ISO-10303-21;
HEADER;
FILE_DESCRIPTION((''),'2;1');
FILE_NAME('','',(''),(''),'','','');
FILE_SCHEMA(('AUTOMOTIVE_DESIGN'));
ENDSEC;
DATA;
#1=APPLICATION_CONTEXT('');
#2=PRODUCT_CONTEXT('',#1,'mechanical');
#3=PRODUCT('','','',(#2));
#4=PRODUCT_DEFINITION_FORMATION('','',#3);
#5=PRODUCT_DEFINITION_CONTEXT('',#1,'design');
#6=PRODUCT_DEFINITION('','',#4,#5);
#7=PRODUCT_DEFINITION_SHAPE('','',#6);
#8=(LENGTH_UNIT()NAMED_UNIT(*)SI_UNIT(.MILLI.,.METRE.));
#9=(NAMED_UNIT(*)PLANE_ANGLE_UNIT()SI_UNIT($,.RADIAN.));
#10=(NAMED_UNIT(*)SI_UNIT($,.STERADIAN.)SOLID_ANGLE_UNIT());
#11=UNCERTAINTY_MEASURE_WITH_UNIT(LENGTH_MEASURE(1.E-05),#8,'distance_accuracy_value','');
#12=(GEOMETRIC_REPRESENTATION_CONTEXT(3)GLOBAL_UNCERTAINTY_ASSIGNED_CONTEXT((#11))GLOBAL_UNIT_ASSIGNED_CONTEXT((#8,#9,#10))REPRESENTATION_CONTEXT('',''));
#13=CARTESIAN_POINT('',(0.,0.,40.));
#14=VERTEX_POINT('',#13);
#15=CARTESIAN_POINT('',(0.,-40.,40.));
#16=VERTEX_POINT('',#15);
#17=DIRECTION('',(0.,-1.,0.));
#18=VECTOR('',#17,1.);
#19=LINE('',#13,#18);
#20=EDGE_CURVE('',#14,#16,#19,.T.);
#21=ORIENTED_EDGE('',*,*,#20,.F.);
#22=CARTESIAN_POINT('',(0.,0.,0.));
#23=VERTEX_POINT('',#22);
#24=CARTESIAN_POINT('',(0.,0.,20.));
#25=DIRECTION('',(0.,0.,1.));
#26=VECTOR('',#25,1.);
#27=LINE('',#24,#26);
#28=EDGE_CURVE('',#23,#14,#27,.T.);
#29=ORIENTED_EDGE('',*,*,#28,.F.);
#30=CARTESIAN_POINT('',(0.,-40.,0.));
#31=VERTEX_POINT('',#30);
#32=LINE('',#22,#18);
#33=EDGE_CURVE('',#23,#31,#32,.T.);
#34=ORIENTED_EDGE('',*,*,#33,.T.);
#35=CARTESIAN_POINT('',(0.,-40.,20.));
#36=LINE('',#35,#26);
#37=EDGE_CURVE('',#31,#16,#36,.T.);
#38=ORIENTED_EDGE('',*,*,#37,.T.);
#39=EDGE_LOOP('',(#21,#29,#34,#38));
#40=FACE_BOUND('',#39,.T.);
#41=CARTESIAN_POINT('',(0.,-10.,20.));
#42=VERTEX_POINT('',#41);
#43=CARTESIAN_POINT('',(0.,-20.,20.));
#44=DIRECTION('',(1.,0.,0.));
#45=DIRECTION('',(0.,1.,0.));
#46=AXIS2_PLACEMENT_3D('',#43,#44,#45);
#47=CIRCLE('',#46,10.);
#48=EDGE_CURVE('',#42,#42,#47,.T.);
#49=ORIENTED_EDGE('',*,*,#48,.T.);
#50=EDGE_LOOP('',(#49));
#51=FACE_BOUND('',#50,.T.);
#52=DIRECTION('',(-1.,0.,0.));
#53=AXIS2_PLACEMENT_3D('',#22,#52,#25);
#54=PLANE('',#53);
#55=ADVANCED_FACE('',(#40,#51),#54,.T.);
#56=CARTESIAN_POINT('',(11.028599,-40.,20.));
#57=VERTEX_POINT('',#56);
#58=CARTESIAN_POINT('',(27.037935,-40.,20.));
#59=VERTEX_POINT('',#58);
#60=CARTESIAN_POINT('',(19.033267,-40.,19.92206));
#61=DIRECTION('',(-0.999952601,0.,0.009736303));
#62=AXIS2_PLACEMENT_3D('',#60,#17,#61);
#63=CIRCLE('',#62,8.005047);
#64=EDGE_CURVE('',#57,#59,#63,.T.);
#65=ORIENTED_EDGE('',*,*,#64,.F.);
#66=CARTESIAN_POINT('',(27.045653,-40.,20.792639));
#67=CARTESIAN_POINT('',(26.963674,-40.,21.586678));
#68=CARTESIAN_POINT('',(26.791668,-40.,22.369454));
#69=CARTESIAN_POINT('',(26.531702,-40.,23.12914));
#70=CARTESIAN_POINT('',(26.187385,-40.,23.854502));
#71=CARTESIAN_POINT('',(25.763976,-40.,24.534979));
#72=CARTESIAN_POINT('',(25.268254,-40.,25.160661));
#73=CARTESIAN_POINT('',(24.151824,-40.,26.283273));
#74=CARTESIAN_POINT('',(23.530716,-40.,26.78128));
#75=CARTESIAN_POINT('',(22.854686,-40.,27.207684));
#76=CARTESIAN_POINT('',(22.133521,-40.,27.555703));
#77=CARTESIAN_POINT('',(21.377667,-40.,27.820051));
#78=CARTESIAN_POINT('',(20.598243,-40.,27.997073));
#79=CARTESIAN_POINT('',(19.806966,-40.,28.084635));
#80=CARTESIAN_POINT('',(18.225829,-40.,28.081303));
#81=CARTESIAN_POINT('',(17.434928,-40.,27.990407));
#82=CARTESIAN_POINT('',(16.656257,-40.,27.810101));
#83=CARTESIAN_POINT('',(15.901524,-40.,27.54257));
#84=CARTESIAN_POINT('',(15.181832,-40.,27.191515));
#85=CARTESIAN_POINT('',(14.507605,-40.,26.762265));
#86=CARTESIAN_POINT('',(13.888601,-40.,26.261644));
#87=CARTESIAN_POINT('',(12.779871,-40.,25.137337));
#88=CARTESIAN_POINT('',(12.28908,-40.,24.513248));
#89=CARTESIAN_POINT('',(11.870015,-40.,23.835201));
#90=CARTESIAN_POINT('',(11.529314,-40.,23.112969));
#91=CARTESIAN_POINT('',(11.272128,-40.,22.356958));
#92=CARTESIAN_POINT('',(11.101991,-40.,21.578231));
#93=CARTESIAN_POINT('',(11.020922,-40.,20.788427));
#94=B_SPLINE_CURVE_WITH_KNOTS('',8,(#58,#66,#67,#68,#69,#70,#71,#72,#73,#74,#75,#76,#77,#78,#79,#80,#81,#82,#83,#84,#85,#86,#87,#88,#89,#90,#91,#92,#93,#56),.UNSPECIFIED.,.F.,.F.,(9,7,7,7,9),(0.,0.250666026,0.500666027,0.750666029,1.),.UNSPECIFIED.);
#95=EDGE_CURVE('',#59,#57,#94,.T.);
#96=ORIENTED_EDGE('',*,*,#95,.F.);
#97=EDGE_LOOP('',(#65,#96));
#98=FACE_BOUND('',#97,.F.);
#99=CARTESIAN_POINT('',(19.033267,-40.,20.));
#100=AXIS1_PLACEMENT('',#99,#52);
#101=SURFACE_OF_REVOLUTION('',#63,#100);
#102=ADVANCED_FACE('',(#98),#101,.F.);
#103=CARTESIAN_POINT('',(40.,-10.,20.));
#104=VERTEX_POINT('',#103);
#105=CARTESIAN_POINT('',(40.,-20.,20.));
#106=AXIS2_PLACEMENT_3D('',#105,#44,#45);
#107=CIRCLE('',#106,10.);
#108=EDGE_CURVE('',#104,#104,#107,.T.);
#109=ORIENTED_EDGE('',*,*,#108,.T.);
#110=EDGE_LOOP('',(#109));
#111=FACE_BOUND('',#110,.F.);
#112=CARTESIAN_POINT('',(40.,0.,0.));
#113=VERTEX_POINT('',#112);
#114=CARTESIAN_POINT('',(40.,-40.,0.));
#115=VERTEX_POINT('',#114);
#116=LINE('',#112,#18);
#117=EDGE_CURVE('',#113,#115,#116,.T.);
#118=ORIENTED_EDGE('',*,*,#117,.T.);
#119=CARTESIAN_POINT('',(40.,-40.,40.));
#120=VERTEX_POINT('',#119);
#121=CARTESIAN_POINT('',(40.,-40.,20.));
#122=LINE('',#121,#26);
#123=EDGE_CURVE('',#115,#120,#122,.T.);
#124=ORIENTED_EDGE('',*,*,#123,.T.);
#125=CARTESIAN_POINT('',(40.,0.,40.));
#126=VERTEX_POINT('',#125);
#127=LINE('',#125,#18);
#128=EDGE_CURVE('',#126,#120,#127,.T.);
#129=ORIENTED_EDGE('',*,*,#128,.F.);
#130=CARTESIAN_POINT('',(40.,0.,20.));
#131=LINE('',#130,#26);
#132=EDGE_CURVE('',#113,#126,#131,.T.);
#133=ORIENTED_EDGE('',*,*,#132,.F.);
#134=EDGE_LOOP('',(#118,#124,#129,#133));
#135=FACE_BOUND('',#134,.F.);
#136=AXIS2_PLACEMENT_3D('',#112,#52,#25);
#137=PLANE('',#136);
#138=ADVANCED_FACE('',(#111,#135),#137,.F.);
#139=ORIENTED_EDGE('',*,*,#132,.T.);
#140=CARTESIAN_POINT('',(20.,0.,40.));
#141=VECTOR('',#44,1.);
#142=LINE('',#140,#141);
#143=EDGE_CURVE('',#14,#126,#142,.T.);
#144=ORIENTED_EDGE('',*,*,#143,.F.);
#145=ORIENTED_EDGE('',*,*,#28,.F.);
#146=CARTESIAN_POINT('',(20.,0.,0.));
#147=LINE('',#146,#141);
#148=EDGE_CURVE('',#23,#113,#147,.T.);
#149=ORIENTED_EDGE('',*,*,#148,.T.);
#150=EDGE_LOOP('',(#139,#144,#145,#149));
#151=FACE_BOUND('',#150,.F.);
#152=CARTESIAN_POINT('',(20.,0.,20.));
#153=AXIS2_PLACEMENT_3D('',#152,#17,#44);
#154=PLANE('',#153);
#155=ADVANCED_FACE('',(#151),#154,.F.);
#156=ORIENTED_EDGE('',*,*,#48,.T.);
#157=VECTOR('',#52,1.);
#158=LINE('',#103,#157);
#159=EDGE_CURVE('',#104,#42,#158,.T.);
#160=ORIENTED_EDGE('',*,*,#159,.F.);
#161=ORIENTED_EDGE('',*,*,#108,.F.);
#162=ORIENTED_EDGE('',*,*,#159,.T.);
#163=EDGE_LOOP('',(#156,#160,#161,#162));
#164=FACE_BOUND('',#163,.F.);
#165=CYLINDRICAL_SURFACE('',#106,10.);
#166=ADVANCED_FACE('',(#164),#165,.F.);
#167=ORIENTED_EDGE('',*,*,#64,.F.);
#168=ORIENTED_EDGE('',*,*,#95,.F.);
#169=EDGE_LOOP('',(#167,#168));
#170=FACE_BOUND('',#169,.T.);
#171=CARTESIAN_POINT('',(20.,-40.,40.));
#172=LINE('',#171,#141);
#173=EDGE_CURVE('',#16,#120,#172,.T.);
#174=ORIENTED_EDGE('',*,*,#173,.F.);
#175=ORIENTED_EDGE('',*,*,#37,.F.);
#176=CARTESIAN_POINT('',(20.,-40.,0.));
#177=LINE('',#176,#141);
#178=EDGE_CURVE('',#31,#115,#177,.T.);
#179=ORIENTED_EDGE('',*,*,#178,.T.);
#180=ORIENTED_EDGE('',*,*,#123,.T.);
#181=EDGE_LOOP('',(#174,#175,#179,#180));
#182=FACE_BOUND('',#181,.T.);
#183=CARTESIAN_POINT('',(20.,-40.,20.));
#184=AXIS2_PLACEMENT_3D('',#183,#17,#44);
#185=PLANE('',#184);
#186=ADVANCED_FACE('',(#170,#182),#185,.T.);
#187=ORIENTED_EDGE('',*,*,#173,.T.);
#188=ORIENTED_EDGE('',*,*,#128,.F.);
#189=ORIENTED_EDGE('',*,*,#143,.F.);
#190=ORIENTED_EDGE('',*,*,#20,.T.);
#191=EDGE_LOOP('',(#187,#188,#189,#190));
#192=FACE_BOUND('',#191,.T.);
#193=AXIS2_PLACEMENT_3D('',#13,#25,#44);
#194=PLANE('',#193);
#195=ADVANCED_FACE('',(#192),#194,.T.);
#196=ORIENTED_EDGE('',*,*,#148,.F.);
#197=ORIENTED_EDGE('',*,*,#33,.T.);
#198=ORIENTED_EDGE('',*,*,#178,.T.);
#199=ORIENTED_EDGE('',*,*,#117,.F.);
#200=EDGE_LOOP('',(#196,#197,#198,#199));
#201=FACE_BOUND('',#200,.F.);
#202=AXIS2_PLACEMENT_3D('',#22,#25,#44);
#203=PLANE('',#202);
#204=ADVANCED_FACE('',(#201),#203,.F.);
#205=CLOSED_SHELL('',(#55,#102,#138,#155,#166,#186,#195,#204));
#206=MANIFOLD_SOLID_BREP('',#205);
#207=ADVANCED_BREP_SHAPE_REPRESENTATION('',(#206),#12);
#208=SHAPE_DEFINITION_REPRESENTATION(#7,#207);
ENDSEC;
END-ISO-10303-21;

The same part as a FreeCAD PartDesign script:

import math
import FreeCAD as App
import Part
import Sketcher
from FreeCAD import Vector

doc = App.newDocument("Part")
body = doc.addObject("PartDesign::Body", "Body")

sketch1 = doc.addObject("Sketcher::SketchObject", "Sketch")
body.addObject(sketch1)
sketch1.AttachmentSupport = (doc.XZ_Plane, [""])
sketch1.MapMode = "FlatFace"
sketch1.addGeometry([
    Part.LineSegment(Vector(0, 40, 0), Vector(0, 0, 0)),
    Part.LineSegment(Vector(0, 0, 0), Vector(40, 0, 0)),
    Part.LineSegment(Vector(40, 0, 0), Vector(40, 40, 0)),
    Part.LineSegment(Vector(40, 40, 0), Vector(0, 40, 0)),
], False)
sketch1.addConstraint([
    Sketcher.Constraint("Coincident", 0, 2, 1, 1),
    Sketcher.Constraint("Coincident", 1, 2, 2, 1),
    Sketcher.Constraint("Coincident", 2, 2, 3, 1),
    Sketcher.Constraint("Coincident", 3, 2, 0, 1),
    Sketcher.Constraint("Vertical", 0),
    Sketcher.Constraint("Horizontal", 1),
    Sketcher.Constraint("Vertical", 2),
    Sketcher.Constraint("Horizontal", 3),
    Sketcher.Constraint("Coincident", 0, 2, -1, 1),
    Sketcher.Constraint("Equal", 3, 0),
    Sketcher.Constraint("DistanceX", 1, 1, 1, 2, 40.0),
])
pad1 = doc.addObject("PartDesign::Pad", "Pad")
body.addObject(pad1)
pad1.Profile = sketch1
pad1.Length = 40

sketch2 = doc.addObject("Sketcher::SketchObject", "Sketch001")
body.addObject(sketch2)
sketch2.AttachmentSupport = (doc.YZ_Plane, [""])
sketch2.MapMode = "FlatFace"
sketch2.AttachmentOffset = App.Placement(Vector(0, 0, 40), App.Rotation())
sketch2.addGeometry(Part.Circle(Vector(-20, 20, 0), Vector(0, 0, 1), 10), False)
sketch2.addConstraint([
    Sketcher.Constraint("Diameter", 0, 20.0),
    Sketcher.Constraint("DistanceX", 0, 3, -1, 1, 20.0),
    Sketcher.Constraint("DistanceY", -1, 1, 0, 3, 20.0),
])
pocket1 = doc.addObject("PartDesign::Pocket", "Pocket")
body.addObject(pocket1)
pocket1.Profile = sketch2
pocket1.Type = "ThroughAll"

sketch3 = doc.addObject("Sketcher::SketchObject", "Sketch002")
body.addObject(sketch3)
sketch3.AttachmentSupport = (doc.XZ_Plane, [""])
sketch3.MapMode = "FlatFace"
sketch3.AttachmentOffset = App.Placement(Vector(0, 0, 40), App.Rotation())
sketch3.addGeometry([
    Part.ArcOfCircle(Part.Circle(Vector(19.033267, 19.92206, 0), Vector(0, 0, 1), 8.005047), math.radians(179.442142), math.radians(360.557858)),
    Part.LineSegment(Vector(27.037935, 20, 0), Vector(11.028599, 20, 0)),
], False)
sketch3.addGeometry(Part.LineSegment(Vector(27.037935, 20, 0), Vector(11.028599, 20, 0)), True)
sketch3.addConstraint([
    Sketcher.Constraint("Coincident", 0, 1, 1, 2),
    Sketcher.Constraint("Coincident", 1, 1, 0, 2),
    Sketcher.Constraint("Horizontal", 1),
    Sketcher.Constraint("Horizontal", 2),
    Sketcher.Constraint("Coincident", 2, 1, 1, 1),
    Sketcher.Constraint("Equal", 1, 2),
    Sketcher.Constraint("DistanceY", -1, 1, 0, 1, 20.0),
    Sketcher.Constraint("Radius", 0, 8.005047),
    Sketcher.Constraint("DistanceX", -1, 1, 0, 1, 11.028599),
    Sketcher.Constraint("DistanceX", 1, 2, 1, 1, 16.009336),
])
revolution = doc.addObject("PartDesign::Revolution", "Revolution")
body.addObject(revolution)
revolution.Profile = sketch3
revolution.ReferenceAxis = (sketch3, ["Axis0"])
revolution.Angle = 360

doc.recompute()
